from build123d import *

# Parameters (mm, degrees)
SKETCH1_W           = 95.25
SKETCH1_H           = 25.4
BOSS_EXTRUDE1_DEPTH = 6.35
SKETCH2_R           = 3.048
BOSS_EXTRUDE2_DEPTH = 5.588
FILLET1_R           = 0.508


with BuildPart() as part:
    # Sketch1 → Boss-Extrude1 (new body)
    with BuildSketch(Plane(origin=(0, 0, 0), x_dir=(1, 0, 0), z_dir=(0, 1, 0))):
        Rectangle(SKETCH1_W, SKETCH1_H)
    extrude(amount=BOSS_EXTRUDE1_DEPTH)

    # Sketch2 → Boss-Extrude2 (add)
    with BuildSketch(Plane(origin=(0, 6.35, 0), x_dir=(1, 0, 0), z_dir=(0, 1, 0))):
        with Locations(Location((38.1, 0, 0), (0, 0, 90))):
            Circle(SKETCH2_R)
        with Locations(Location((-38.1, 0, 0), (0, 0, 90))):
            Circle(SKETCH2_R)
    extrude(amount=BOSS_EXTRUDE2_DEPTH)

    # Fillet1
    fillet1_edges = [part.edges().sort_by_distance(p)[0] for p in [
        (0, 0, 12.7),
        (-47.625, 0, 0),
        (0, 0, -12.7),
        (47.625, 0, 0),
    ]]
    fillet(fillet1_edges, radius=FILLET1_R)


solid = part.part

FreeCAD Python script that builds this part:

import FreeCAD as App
import Part
import Sketcher

V = App.Vector
Q = App.Units.Quantity


def edges_at(feature, points):
    """Names of the edges that pass closest to the given points."""
    edges = feature.Shape.Edges
    near = lambda p: min(range(len(edges)), key=lambda i: edges[i].distToShape(Part.Vertex(*p))[0])
    return sorted({f"Edge{near(p) + 1}" for p in points})


def add_polygon(sketch, points):
    """Adds a closed chain of lines whose ends are joined by coincident constraints."""
    first, n = sketch.GeometryCount, len(points)
    for a, b in zip(points, points[1:] + points[:1]):
        sketch.addGeometry(Part.LineSegment(App.Vector(*a, 0), App.Vector(*b, 0)), False)
    for i in range(n):
        sketch.addConstraint(Sketcher.Constraint("Coincident", first + i, 2, first + (i + 1) % n, 1))

doc = App.newDocument("Part")
params = doc.addObject("Spreadsheet::Sheet", "Params")
for row, (alias, value) in enumerate([
    ("sketch1_height", "1 in"),
    ("sketch1_width", "3.75 in"),
    ("pad1_length", "0.25 in"),
    ("sketch2_diameter", "0.24 in"),
    ("pad2_length", "0.22 in"),
    ("fillet_radius", "0.02 in"),
], start=1):
    params.set(f"A{row}", alias)
    params.set(f"B{row}", "=" + value)
    params.setAlias(f"B{row}", alias)

body = doc.addObject("PartDesign::Body", "Body")

sketch1 = body.newObject("Sketcher::SketchObject", "Sketch")
sketch1.AttachmentSupport = (doc.getObject("XZ_Plane"), [""])
sketch1.MapMode = "FlatFace"
add_polygon(sketch1, [(-47.625, -12.7), (-47.625, 12.7), (47.625, 12.7), (47.625, -12.7)])
sketch1.addConstraint([
    Sketcher.Constraint("Vertical", 0),
    Sketcher.Constraint("Horizontal", 1),
    Sketcher.Constraint("Vertical", 2),
    Sketcher.Constraint("Horizontal", 3),
    Sketcher.Constraint("Symmetric", 0, 2, 2, 2, -1, 1),
    Sketcher.Constraint("DistanceY", 0, 1, 0, 2, Q("1 in")),
    Sketcher.Constraint("DistanceX", 1, 1, 1, 2, Q("3.75 in")),
])
sketch1.setExpression("Constraints[9]", "Params.sketch1_height")
sketch1.setExpression("Constraints[10]", "Params.sketch1_width")
pad1 = body.newObject("PartDesign::Pad", "Pad")
pad1.Profile = sketch1
pad1.setExpression("Length", "Params.pad1_length")
pad1.Reversed = True

sketch2 = body.newObject("Sketcher::SketchObject", "Sketch001")
sketch2.AttachmentSupport = (doc.getObject("XZ_Plane"), [""])
sketch2.MapMode = "FlatFace"
sketch2.AttachmentOffset = App.Placement(V(0, 0, -0.25 * 25.4), App.Rotation())
sketch2.addGeometry([
    Part.Circle(V(38.1, 0, 0), V(0, 0, 1), 3.048),
    Part.Circle(V(-38.1, 0, 0), V(0, 0, 1), 3.048),
], False)
sketch2.addConstraint([
    Sketcher.Constraint("Equal", 0, 1),
    Sketcher.Constraint("Symmetric", 0, 3, 1, 3, -1, 1),
    Sketcher.Constraint("PointOnObject", 0, 3, -1),
    Sketcher.Constraint("Diameter", 0, Q("0.24 in")),
    Sketcher.Constraint("DistanceX", 1, 3, 0, 3, Q("3 in")),
])
sketch2.setExpression("Constraints[3]", "Params.sketch2_diameter")
pad2 = body.newObject("PartDesign::Pad", "Pad001")
pad2.Profile = sketch2
pad2.setExpression("Length", "Params.pad2_length")
pad2.Reversed = True
doc.recompute()

fillet = body.newObject("PartDesign::Fillet", "Fillet")
fillet.Base = (pad2, edges_at(pad2, [
    (0, 0, 12.7),
    (-47.625, 0, 0),
    (0, 0, -12.7),
    (47.625, 0, 0),
]))
fillet.setExpression("Radius", "Params.fillet_radius")

doc.recompute()
